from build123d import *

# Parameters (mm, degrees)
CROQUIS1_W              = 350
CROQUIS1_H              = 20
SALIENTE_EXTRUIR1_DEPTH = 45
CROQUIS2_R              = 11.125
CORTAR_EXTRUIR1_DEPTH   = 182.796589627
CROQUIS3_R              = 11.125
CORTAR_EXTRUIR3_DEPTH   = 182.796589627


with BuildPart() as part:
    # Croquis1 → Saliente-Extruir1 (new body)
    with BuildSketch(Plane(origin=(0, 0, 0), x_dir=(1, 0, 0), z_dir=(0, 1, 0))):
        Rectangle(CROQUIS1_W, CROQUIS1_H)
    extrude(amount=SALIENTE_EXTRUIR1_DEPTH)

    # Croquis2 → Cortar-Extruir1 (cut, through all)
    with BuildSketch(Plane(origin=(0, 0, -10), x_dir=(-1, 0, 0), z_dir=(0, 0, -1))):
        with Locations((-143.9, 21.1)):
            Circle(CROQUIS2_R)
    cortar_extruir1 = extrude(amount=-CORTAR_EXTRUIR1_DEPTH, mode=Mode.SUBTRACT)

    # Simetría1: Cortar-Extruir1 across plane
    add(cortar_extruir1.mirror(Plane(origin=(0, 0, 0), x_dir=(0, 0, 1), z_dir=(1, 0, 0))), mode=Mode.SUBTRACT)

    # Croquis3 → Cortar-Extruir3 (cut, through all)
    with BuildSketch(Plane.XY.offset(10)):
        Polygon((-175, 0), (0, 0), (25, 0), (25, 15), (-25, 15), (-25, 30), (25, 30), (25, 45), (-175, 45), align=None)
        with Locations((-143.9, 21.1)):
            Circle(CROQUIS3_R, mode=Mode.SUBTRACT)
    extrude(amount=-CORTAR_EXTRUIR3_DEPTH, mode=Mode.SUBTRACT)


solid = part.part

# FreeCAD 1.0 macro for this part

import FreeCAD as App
import Part
import Sketcher
from FreeCAD import Vector

doc = App.newDocument("Part")
params = doc.addObject("Spreadsheet::Sheet", "Params")
for row, (alias, value) in enumerate([
    ("sketch1_width", "350 mm"),
    ("sketch1_height", "20 mm"),
    ("pad1_length", "45 mm"),
    ("sketch2_diameter", "22.25 mm"),
    ("sketch3_diameter", "22.25 mm"),
    ("sketch3_width", "200 mm"),
    ("sketch3_width2", "50 mm"),
    ("sketch3_height", "15 mm"),
], start=1):
    params.set(f"A{row}", alias)
    params.set(f"B{row}", "=" + value)
    params.setAlias(f"B{row}", alias)

body = doc.addObject("PartDesign::Body", "Body")

# Sketch on XZ plane
sketch1 = body.newObject("Sketcher::SketchObject", "Sketch")
sketch1.AttachmentSupport = (doc.getObject("XZ_Plane"), [""])
sketch1.MapMode = "FlatFace"
sketch1.addGeometry([
    Part.LineSegment(Vector(-175, -10, 0), Vector(-175, 10, 0)),
    Part.LineSegment(Vector(-175, 10, 0), Vector(175, 10, 0)),
    Part.LineSegment(Vector(175, 10, 0), Vector(175, -10, 0)),
    Part.LineSegment(Vector(175, -10, 0), Vector(-175, -10, 0)),
], False)
sketch1.addConstraint([
    Sketcher.Constraint("Coincident", 0, 2, 1, 1),
    Sketcher.Constraint("Coincident", 1, 2, 2, 1),
    Sketcher.Constraint("Coincident", 2, 2, 3, 1),
    Sketcher.Constraint("Coincident", 3, 2, 0, 1),
    Sketcher.Constraint("Vertical", 0),
    Sketcher.Constraint("Horizontal", 1),
    Sketcher.Constraint("Vertical", 2),
    Sketcher.Constraint("Horizontal", 3),
    Sketcher.Constraint("Symmetric", 0, 2, 2, 2, -1, 1),
    Sketcher.Constraint("DistanceX", 1, 1, 1, 2, 350.0),
    Sketcher.Constraint("DistanceY", 0, 1, 0, 2, 20.0),
])
sketch1.setExpression("Constraints[9]", "Params.sketch1_width")
sketch1.setExpression("Constraints[10]", "Params.sketch1_height")
pad1 = body.newObject("PartDesign::Pad", "Pad")
pad1.Profile = sketch1
pad1.setExpression("Length", "Params.pad1_length")
pad1.Reversed = True

# Sketch on XY plane
sketch2 = body.newObject("Sketcher::SketchObject", "Sketch001")
sketch2.AttachmentSupport = (doc.getObject("XY_Plane"), [""])
sketch2.MapMode = "FlatFace"
sketch2.AttachmentOffset = App.Placement(Vector(0, 0, -10), App.Rotation())
sketch2.addGeometry(Part.Circle(Vector(143.9, 21.1, 0), Vector(0, 0, 1), 11.125), False)
sketch2.addConstraint([
    Sketcher.Constraint("Diameter", 0, 22.25),
    Sketcher.Constraint("DistanceX", -1, 1, 0, 3, 143.9),
    Sketcher.Constraint("DistanceY", -1, 1, 0, 3, 21.1),
])
sketch2.setExpression("Constraints[0]", "Params.sketch2_diameter")
pocket1 = body.newObject("PartDesign::Pocket", "Pocket")
pocket1.Profile = sketch2
pocket1.Type = "ThroughAll"
pocket1.Reversed = True
doc.recompute()

mirrored = body.newObject("PartDesign::Mirrored", "Mirrored")
mirrored.Originals = [pocket1]
mirrored.MirrorPlane = (doc.getObject("YZ_Plane"), [""])
body.Tip = mirrored

# Sketch on XY plane
sketch3 = body.newObject("Sketcher::SketchObject", "Sketch002")
sketch3.AttachmentSupport = (doc.getObject("XY_Plane"), [""])
sketch3.MapMode = "FlatFace"
sketch3.AttachmentOffset = App.Placement(Vector(0, 0, 10), App.Rotation())
sketch3.addGeometry([
    Part.LineSegment(Vector(-175, 0, 0), Vector(25, 0, 0)),  # 0
    Part.LineSegment(Vector(25, 0, 0), Vector(25, 15, 0)),  # 1
    Part.LineSegment(Vector(25, 15, 0), Vector(-25, 15, 0)),  # 2
    Part.LineSegment(Vector(-25, 15, 0), Vector(-25, 30, 0)),  # 3
    Part.LineSegment(Vector(-25, 30, 0), Vector(25, 30, 0)),  # 4
    Part.LineSegment(Vector(25, 30, 0), Vector(25, 45, 0)),  # 5
    Part.LineSegment(Vector(25, 45, 0), Vector(-175, 45, 0)),  # 6
    Part.LineSegment(Vector(-175, 45, 0), Vector(-175, 0, 0)),  # 7
    Part.Circle(Vector(-143.9, 21.1, 0), Vector(0, 0, 1), 11.125),  # 8
], False)
sketch3.addConstraint([
    Sketcher.Constraint("Coincident", 0, 2, 1, 1),
    Sketcher.Constraint("Coincident", 1, 2, 2, 1),
    Sketcher.Constraint("Coincident", 2, 2, 3, 1),
    Sketcher.Constraint("Coincident", 3, 2, 4, 1),
    Sketcher.Constraint("Coincident", 4, 2, 5, 1),
    Sketcher.Constraint("Coincident", 5, 2, 6, 1),
    Sketcher.Constraint("Coincident", 6, 2, 7, 1),
    Sketcher.Constraint("Coincident", 7, 2, 0, 1),
    Sketcher.Constraint("Horizontal", 0),
    Sketcher.Constraint("Vertical", 1),
    Sketcher.Constraint("Horizontal", 2),
    Sketcher.Constraint("Vertical", 3),
    Sketcher.Constraint("Horizontal", 4),
    Sketcher.Constraint("Vertical", 5),
    Sketcher.Constraint("Horizontal", 6),
    Sketcher.Constraint("Vertical", 7),
    Sketcher.Constraint("PointOnObject", 0, 2, -1),
    Sketcher.Constraint("Vertical", 1, 2, 4, 2),
    Sketcher.Constraint("Equal", 1, 3),
    Sketcher.Constraint("Equal", 3, 5),
    Sketcher.Constraint("Diameter", 8, 22.25),
    Sketcher.Constraint("DistanceX", 0, 1, 0, 2, 200.0),
    Sketcher.Constraint("DistanceX", 2, 2, 2, 1, 50.0),
    Sketcher.Constraint("DistanceY", 1, 1, 1, 2, 15.0),
    Sketcher.Constraint("DistanceX", -1, 1, 0, 2, 25.0),
    Sketcher.Constraint("DistanceX", 8, 3, -1, 1, 143.9),
    Sketcher.Constraint("DistanceY", -1, 1, 8, 3, 21.1),
])
sketch3.setExpression("Constraints[20]", "Params.sketch3_diameter")
sketch3.setExpression("Constraints[21]", "Params.sketch3_width")
sketch3.setExpression("Constraints[22]", "Params.sketch3_width2")
sketch3.setExpression("Constraints[23]", "Params.sketch3_height")
pocket2 = body.newObject("PartDesign::Pocket", "Pocket001")
pocket2.Profile = sketch3
pocket2.Type = "ThroughAll"

doc.recompute()
